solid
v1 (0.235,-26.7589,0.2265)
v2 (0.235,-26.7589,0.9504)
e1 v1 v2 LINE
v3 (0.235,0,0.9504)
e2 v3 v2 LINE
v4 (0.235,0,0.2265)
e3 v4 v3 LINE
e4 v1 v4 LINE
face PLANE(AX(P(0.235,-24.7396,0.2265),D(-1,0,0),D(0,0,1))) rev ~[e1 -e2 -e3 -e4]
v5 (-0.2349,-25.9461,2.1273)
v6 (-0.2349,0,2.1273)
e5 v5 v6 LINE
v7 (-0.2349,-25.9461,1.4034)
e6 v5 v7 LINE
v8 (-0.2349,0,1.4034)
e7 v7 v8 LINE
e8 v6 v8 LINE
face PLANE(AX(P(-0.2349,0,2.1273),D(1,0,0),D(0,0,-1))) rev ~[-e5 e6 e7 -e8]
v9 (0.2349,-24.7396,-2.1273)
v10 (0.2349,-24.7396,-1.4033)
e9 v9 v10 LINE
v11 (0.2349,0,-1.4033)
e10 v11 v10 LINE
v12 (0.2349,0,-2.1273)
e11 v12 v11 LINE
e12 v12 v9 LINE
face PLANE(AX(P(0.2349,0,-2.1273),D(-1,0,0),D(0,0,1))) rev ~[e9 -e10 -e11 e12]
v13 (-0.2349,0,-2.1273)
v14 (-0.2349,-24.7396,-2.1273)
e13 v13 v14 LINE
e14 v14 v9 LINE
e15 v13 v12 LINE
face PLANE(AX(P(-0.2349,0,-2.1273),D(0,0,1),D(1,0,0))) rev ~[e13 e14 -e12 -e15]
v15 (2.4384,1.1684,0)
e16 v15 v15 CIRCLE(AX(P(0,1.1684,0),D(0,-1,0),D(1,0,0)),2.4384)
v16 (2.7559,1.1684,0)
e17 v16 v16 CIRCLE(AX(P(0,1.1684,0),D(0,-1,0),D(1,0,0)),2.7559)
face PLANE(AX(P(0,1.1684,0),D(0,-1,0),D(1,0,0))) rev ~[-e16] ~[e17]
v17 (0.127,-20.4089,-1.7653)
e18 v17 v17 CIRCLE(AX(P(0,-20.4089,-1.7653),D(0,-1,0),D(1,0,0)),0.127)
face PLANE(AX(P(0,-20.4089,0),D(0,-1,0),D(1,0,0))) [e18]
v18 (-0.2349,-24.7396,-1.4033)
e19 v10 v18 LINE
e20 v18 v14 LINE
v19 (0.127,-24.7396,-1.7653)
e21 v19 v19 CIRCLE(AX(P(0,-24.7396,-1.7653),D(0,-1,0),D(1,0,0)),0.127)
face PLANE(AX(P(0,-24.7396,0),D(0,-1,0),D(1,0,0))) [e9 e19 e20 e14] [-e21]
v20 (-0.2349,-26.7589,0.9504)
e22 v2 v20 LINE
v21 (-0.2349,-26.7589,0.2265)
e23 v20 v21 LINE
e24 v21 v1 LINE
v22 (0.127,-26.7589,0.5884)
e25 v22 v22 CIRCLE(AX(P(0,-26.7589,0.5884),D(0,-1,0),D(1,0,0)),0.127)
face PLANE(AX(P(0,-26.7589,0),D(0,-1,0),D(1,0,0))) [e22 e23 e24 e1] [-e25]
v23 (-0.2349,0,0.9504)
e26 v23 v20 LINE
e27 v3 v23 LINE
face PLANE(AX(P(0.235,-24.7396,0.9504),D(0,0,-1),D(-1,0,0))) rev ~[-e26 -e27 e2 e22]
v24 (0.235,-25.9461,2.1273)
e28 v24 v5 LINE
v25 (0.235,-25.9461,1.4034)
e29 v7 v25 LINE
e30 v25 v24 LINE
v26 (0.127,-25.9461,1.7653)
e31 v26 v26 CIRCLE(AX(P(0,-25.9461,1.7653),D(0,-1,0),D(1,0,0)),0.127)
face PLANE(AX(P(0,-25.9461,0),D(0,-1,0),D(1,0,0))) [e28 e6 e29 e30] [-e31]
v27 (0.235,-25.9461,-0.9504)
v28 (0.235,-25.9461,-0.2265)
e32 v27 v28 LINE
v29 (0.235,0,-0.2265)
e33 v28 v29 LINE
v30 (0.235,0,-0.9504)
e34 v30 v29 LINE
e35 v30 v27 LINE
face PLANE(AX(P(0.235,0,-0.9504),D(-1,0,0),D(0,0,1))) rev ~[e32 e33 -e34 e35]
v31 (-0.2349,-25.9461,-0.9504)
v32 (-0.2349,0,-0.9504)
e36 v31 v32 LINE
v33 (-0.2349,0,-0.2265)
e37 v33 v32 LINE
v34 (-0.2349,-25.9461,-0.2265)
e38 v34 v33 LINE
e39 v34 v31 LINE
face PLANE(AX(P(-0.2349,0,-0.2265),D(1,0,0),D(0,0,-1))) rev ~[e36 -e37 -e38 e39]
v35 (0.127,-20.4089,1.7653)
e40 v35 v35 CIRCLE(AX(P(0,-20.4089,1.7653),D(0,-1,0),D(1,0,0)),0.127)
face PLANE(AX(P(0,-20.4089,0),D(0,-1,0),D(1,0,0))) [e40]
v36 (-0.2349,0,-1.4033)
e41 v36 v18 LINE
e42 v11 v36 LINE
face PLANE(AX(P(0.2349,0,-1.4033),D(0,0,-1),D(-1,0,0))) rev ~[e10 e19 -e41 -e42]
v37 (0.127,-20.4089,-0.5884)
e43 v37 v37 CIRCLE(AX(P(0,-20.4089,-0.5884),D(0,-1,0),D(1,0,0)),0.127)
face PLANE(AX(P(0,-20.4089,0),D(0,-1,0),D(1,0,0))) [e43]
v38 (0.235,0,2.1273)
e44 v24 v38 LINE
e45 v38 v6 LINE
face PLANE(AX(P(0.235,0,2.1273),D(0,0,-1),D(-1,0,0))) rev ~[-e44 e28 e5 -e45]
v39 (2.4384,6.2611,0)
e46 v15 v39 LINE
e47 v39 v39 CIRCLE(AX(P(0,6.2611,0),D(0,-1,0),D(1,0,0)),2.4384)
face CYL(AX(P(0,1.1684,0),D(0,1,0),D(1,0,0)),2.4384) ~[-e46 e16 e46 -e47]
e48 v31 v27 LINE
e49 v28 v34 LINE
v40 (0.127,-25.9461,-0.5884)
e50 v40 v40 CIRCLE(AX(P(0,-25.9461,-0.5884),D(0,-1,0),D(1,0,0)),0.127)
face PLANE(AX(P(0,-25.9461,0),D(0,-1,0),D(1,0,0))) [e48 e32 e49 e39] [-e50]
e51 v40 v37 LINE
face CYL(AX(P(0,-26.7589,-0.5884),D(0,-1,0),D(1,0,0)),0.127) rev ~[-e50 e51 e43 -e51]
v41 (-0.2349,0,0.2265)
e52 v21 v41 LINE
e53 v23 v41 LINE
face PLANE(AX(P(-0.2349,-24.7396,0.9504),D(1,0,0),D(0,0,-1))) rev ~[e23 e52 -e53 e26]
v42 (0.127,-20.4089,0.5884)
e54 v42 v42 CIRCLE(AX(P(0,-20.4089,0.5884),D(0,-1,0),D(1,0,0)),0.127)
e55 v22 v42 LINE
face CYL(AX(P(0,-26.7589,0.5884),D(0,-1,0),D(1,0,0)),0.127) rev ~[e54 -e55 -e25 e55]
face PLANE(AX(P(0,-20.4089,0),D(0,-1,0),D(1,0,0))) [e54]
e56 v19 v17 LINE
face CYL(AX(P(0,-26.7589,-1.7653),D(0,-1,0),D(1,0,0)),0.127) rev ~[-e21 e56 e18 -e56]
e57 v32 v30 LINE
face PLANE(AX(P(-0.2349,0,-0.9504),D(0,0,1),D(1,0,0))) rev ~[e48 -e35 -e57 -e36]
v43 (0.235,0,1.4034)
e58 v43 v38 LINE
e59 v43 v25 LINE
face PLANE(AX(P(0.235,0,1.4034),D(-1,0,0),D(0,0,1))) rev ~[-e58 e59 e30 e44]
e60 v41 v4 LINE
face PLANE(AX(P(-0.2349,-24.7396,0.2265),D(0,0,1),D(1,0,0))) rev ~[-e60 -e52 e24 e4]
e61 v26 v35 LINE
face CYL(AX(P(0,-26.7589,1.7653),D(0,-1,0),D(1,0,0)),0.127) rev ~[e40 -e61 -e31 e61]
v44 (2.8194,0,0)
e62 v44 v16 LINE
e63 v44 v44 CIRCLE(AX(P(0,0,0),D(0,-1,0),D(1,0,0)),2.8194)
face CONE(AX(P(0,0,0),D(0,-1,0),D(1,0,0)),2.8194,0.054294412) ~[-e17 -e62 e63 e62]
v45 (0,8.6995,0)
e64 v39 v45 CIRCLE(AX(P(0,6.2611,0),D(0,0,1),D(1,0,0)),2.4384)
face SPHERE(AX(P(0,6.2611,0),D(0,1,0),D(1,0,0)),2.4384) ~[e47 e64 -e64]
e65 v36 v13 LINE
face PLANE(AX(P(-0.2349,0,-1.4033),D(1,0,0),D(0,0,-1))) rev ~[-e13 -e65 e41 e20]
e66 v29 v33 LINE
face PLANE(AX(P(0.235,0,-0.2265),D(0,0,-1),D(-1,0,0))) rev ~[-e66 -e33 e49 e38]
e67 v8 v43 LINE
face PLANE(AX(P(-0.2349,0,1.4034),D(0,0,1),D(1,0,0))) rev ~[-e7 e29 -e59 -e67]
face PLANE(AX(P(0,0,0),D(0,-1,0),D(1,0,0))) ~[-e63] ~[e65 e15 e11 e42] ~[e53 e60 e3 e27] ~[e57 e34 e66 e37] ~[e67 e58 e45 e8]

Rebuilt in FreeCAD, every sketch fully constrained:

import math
import FreeCAD as App
import Part
import Sketcher
Q = App.Units.Quantity


def add_polygon(sketch, points):
    """Adds a closed chain of lines whose ends are joined by coincident constraints."""
    first, n = sketch.GeometryCount, len(points)
    for a, b in zip(points, points[1:] + points[:1]):
        sketch.addGeometry(Part.LineSegment(App.Vector(*a, 0), App.Vector(*b, 0)), False)
    for i in range(n):
        sketch.addConstraint(Sketcher.Constraint("Coincident", first + i, 2, first + (i + 1) % n, 1))

doc = App.newDocument("Part")
body = doc.addObject("PartDesign::Body", "Body")

# Sketch on XY plane
sketch1 = body.newObject("Sketcher::SketchObject", "Sketch")
sketch1.AttachmentSupport = (doc.getObject("XY_Plane"), [""])
sketch1.MapMode = "FlatFace"
sketch1.addGeometry([
    Part.ArcOfCircle(Part.Circle(App.Vector(0, 6.26, 0), App.Vector(0, 0, 1), 2.44), math.radians(0), math.radians(90)),  # 0
    Part.LineSegment(App.Vector(0, 8.7, 0), App.Vector(0, 0, 0)),  # 1
    Part.LineSegment(App.Vector(0, 0, 0), App.Vector(2.82, 0, 0)),  # 2
    Part.LineSegment(App.Vector(2.82, 0, 0), App.Vector(2.76, 1.17, 0)),  # 3
    Part.LineSegment(App.Vector(2.76, 1.17, 0), App.Vector(2.44, 1.17, 0)),  # 4
    Part.LineSegment(App.Vector(2.44, 1.17, 0), App.Vector(2.44, 6.26, 0)),  # 5
], False)
sketch1.addConstraint([
    Sketcher.Constraint("Coincident", 0, 2, 1, 1),
    Sketcher.Constraint("Coincident", 1, 2, 2, 1),
    Sketcher.Constraint("Coincident", 2, 2, 3, 1),
    Sketcher.Constraint("Coincident", 3, 2, 4, 1),
    Sketcher.Constraint("Coincident", 4, 2, 5, 1),
    Sketcher.Constraint("Tangent", 5, 2, 0, 1),
    Sketcher.Constraint("Vertical", 1),
    Sketcher.Constraint("Horizontal", 2),
    Sketcher.Constraint("Horizontal", 4),
    Sketcher.Constraint("Vertical", 5),
    Sketcher.Constraint("Coincident", 1, 2, -1, 1),
    Sketcher.Constraint("PointOnObject", 0, 3, -2),
    Sketcher.Constraint("Radius", 0, Q("0.096 in")),
    Sketcher.Constraint("DistanceX", 2, 1, 2, 2, Q("0.111 in")),
    Sketcher.Constraint("DistanceY", 1, 2, 1, 1, Q("0.3425 in")),
    Sketcher.Constraint("DistanceY", -1, 1, 3, 2, Q("0.046 in")),
    Sketcher.Constraint("DistanceX", -1, 1, 3, 2, Q("0.1085 in")),
])
revolution = body.newObject("PartDesign::Revolution", "Revolution")
revolution.Profile = sketch1
revolution.ReferenceAxis = (sketch1, ["V_Axis"])
revolution.Angle = 360

# Sketch on XZ plane
sketch2 = body.newObject("Sketcher::SketchObject", "Sketch001")
sketch2.AttachmentSupport = (doc.getObject("XZ_Plane"), [""])
sketch2.MapMode = "FlatFace"
add_polygon(sketch2, [(0.23, 1.4), (0.23, 2.13), (-0.23, 2.13), (-0.23, 1.4)])  # lines 0-3
add_polygon(sketch2, [(0.23, 0.23), (0.23, 0.95), (-0.23, 0.95), (-0.23, 0.23)])  # lines 4-7
add_polygon(sketch2, [(0.23, -0.95), (0.23, -0.23), (-0.23, -0.23), (-0.23, -0.95)])  # lines 8-11
add_polygon(sketch2, [(0.23, -2.13), (0.23, -1.4), (-0.23, -1.4), (-0.23, -2.13)])  # lines 12-15
sketch2.addConstraint([
    Sketcher.Constraint("Vertical", 0),
    Sketcher.Constraint("Horizontal", 1),
    Sketcher.Constraint("Vertical", 2),
    Sketcher.Constraint("Horizontal", 3),
    Sketcher.Constraint("Vertical", 4),
    Sketcher.Constraint("Horizontal", 5),
    Sketcher.Constraint("Vertical", 6),
    Sketcher.Constraint("Horizontal", 7),
    Sketcher.Constraint("Vertical", 8),
    Sketcher.Constraint("Horizontal", 9),
    Sketcher.Constraint("Vertical", 10),
    Sketcher.Constraint("Horizontal", 11),
    Sketcher.Constraint("Vertical", 12),
    Sketcher.Constraint("Horizontal", 13),
    Sketcher.Constraint("Vertical", 14),
    Sketcher.Constraint("Horizontal", 15),
    Sketcher.Constraint("Symmetric", 6, 2, 8, 2, -1, 1),
    Sketcher.Constraint("Symmetric", 4, 2, 10, 2, -1, 1),
    Sketcher.Constraint("Symmetric", 2, 2, 12, 2, -1, 1),
    Sketcher.Constraint("Symmetric", 0, 2, 14, 2, -1, 1),
    Sketcher.Constraint("Vertical", 3, 2, 4, 2),
    Sketcher.Constraint("Vertical", 2, 2, 5, 2),
    Sketcher.Constraint("Vertical", 7, 2, 8, 2),
    Sketcher.Constraint("Equal", 2, 4),
    Sketcher.Constraint("DistanceX", 1, 2, 1, 1, Q("0.0185 in")),
    Sketcher.Constraint("DistanceY", 0, 1, 0, 2, Q("0.0285 in")),
    Sketcher.Constraint("DistanceY", 4, 2, 3, 2, Q("0.453 mm")),
    Sketcher.Constraint("DistanceY", 8, 2, 7, 2, Q("0.453 mm")),
])
pad1 = body.newObject("PartDesign::Pad", "Pad")
pad1.Profile = sketch2
pad1.Length = Q("0.974 in")

# Sketch on XZ plane
sketch3 = body.newObject("Sketcher::SketchObject", "Sketch002")
sketch3.AttachmentSupport = (doc.getObject("XZ_Plane"), [""])
sketch3.MapMode = "FlatFace"
sketch3.AttachmentOffset = App.Placement(App.Vector(0, 0, 0.974 * 25.4), App.Rotation())
add_polygon(sketch3, [(0.23, 1.4), (0.23, 2.13), (-0.23, 2.13), (-0.23, 1.4)])  # lines 0-3
add_polygon(sketch3, [(0.23, -0.95), (0.23, -0.23), (-0.23, -0.23), (-0.23, -0.95)])  # lines 4-7
sketch3.addConstraint([
    Sketcher.Constraint("Vertical", 0),
    Sketcher.Constraint("Horizontal", 1),
    Sketcher.Constraint("Vertical", 2),
    Sketcher.Constraint("Horizontal", 3),
    Sketcher.Constraint("Vertical", 4),
    Sketcher.Constraint("Horizontal", 5),
    Sketcher.Constraint("Vertical", 6),
    Sketcher.Constraint("Horizontal", 7),
    Sketcher.Constraint("Vertical", 3, 2, 4, 2),
    Sketcher.Constraint("Vertical", 2, 2, 5, 2),
    Sketcher.Constraint("Equal", 2, 4),
    Sketcher.Constraint("DistanceX", 1, 2, 1, 1, Q("0.0185 in")),
    Sketcher.Constraint("DistanceY", 0, 1, 0, 2, Q("0.0285 in")),
    Sketcher.Constraint("DistanceX", -1, 1, 0, 2, Q("0.235 mm")),
    Sketcher.Constraint("DistanceY", -1, 1, 0, 2, Q("2.1273 mm")),
    Sketcher.Constraint("DistanceY", 4, 2, -1, 1, Q("0.2265 mm")),
])
pad2 = body.newObject("PartDesign::Pad", "Pad001")
pad2.Profile = sketch3
pad2.Length = Q("0.0475 in")

# Sketch on XZ plane
sketch4 = body.newObject("Sketcher::SketchObject", "Sketch003")
sketch4.AttachmentSupport = (doc.getObject("XZ_Plane"), [""])
sketch4.MapMode = "FlatFace"
sketch4.AttachmentOffset = App.Placement(App.Vector(0, 0, 0.974 * 25.4), App.Rotation())
add_polygon(sketch4, [(0.23, 0.23), (0.23, 0.95), (-0.23, 0.95), (-0.23, 0.23)])  # lines 0-3
sketch4.addConstraint([
    Sketcher.Constraint("Vertical", 0),
    Sketcher.Constraint("Horizontal", 1),
    Sketcher.Constraint("Vertical", 2),
    Sketcher.Constraint("Horizontal", 3),
    Sketcher.Constraint("DistanceX", 1, 2, 1, 1, Q("0.0185 in")),
    Sketcher.Constraint("DistanceY", 0, 1, 0, 2, Q("0.0285 in")),
    Sketcher.Constraint("DistanceX", -1, 1, 0, 2, Q("0.235 mm")),
    Sketcher.Constraint("DistanceY", -1, 1, 0, 2, Q("0.9504 mm")),
])
pad3 = body.newObject("PartDesign::Pad", "Pad002")
pad3.Profile = sketch4
pad3.Length = Q("0.0795 in")

# Sketch on XZ plane
sketch5 = body.newObject("Sketcher::SketchObject", "Sketch004")
sketch5.AttachmentSupport = (doc.getObject("XZ_Plane"), [""])
sketch5.MapMode = "FlatFace"
sketch5.AttachmentOffset = App.Placement(App.Vector(0, 0, 1.0535 * 25.4), App.Rotation())
sketch5.addGeometry([
    Part.Circle(App.Vector(0, 1.77, 0), App.Vector(0, 0, 1), 0.13),
    Part.Circle(App.Vector(0, 0.59, 0), App.Vector(0, 0, 1), 0.13),
    Part.Circle(App.Vector(0, -0.59, 0), App.Vector(0, 0, 1), 0.13),
    Part.Circle(App.Vector(0, -1.77, 0), App.Vector(0, 0, 1), 0.13),
], False)
sketch5.addConstraint([
    Sketcher.Constraint("Equal", 0, 1),
    Sketcher.Constraint("Equal", 1, 2),
    Sketcher.Constraint("Equal", 2, 3),
    Sketcher.Constraint("Symmetric", 1, 3, 2, 3, -1, 1),
    Sketcher.Constraint("Symmetric", 0, 3, 3, 3, -1, 1),
    Sketcher.Constraint("PointOnObject", 0, 3, -2),
    Sketcher.Constraint("PointOnObject", 1, 3, -2),
    Sketcher.Constraint("Diameter", 0, Q("0.01 in")),
    Sketcher.Constraint("DistanceY", 3, 3, 0, 3, Q("0.139 in")),
    Sketcher.Constraint("DistanceY", -1, 1, 1, 3, Q("0.5884 mm")),
])
pocket1 = body.newObject("PartDesign::Pocket", "Pocket")
pocket1.Profile = sketch5
pocket1.Length = Q("0.25 in")

doc.recompute()
